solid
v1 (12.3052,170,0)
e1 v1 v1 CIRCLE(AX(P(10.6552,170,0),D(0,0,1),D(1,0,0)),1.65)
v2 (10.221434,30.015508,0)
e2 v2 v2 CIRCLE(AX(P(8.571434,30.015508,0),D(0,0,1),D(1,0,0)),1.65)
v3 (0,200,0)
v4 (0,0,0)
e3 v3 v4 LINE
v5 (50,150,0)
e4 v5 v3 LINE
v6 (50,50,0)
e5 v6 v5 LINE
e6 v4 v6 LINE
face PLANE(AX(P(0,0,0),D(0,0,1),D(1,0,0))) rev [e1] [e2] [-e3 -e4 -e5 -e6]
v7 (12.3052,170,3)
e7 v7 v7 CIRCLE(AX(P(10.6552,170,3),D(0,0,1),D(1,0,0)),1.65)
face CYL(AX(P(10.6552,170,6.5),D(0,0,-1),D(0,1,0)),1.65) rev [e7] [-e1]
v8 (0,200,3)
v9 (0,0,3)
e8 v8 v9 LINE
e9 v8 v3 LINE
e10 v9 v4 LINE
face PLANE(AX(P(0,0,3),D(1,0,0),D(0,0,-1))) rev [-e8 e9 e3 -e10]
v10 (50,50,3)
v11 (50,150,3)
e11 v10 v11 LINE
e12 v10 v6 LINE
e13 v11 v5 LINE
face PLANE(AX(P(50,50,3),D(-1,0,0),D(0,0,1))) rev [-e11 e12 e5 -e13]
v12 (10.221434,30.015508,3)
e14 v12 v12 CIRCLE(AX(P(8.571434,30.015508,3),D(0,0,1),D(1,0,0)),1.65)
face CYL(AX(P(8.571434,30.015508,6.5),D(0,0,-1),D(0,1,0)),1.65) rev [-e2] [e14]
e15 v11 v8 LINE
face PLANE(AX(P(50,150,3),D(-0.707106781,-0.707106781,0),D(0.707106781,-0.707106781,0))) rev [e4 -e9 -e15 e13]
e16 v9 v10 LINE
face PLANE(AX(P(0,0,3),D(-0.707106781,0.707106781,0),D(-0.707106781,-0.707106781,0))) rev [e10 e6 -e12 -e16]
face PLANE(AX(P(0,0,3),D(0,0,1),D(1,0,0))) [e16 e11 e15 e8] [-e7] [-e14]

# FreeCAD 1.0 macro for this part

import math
import FreeCAD as App
import Part
import Sketcher

V = App.Vector
Q = App.Units.Quantity


def add_polygon(sketch, points):
    """Adds a closed chain of lines whose ends are joined by coincident constraints."""
    first, n = sketch.GeometryCount, len(points)
    for a, b in zip(points, points[1:] + points[:1]):
        sketch.addGeometry(Part.LineSegment(App.Vector(*a, 0), App.Vector(*b, 0)), False)
    for i in range(n):
        sketch.addConstraint(Sketcher.Constraint("Coincident", first + i, 2, first + (i + 1) % n, 1))

doc = App.newDocument("Part")
params = doc.addObject("Spreadsheet::Sheet", "Params")
for row, (alias, value) in enumerate([
    ("sketch1_height", "200 mm"),
    ("sketch1_height2", "100 mm"),
    ("pad1_length", "3 mm"),
    ("sketch2_diameter", "3.3 mm"),
    ("pocket1_length", "8 mm"),
], start=1):
    params.set(f"A{row}", alias)
    params.set(f"B{row}", "=" + value)
    params.setAlias(f"B{row}", alias)

body = doc.addObject("PartDesign::Body", "Body")

# Sketch on XY plane
sketch1 = doc.addObject("Sketcher::SketchObject", "Sketch")
body.addObject(sketch1)
sketch1.AttachmentSupport = (doc.XY_Plane, [""])
sketch1.MapMode = "FlatFace"
add_polygon(sketch1, [(0, 200), (0, 0), (50, 50), (50, 150)])  # lines 0-3
sketch1.addConstraint(Sketcher.Constraint("Vertical", 0))
sketch1.addConstraint(Sketcher.Constraint("Vertical", 2))
sketch1.addConstraint(Sketcher.Constraint("Coincident", 0, 2, -1, 1))
sketch1.addConstraint(Sketcher.Constraint("Perpendicular", 1, 3))
sketch1.addConstraint(Sketcher.Constraint("Equal", 1, 3))
sketch1.addConstraint(Sketcher.Constraint("DistanceY", 0, 2, 0, 1, Q("200 mm")))
sketch1.addConstraint(Sketcher.Constraint("DistanceY", 2, 1, 2, 2, Q("100 mm")))
sketch1.setExpression("Constraints[9]", "Params.sketch1_height")
sketch1.setExpression("Constraints[10]", "Params.sketch1_height2")
pad1 = doc.addObject("PartDesign::Pad", "Pad")
body.addObject(pad1)
pad1.Profile = sketch1
pad1.setExpression("Length", "Params.pad1_length")

# Sketch on XY plane
sketch2 = doc.addObject("Sketcher::SketchObject", "Sketch001")
body.addObject(sketch2)
sketch2.AttachmentSupport = (doc.XY_Plane, [""])
sketch2.MapMode = "FlatFace"
sketch2.AttachmentOffset = App.Placement(V(0, 0, -1.5), App.Rotation())
sketch2.addGeometry(Part.ArcOfCircle(Part.Circle(V(10.7, 170, 0), V(0, 0, 1), 1.6), math.radians(89), math.radians(179)), False)
sketch2.addGeometry(Part.ArcOfCircle(Part.Circle(V(10.7, 170, 0), V(0, 0, 1), 1.6), math.radians(-91), math.radians(89)), False)
sketch2.addGeometry(Part.ArcOfCircle(Part.Circle(V(10.7, 170, 0), V(0, 0, 1), 1.6), math.radians(179), math.radians(269)), False)
sketch2.addGeometry(Part.Circle(V(8.6, 30, 0), V(0, 0, 1), 1.6), False)
sketch2.addConstraint(Sketcher.Constraint("Tangent", 0, 1, 1, 2))
sketch2.addConstraint(Sketcher.Constraint("Tangent", 1, 1, 2, 2))
sketch2.addConstraint(Sketcher.Constraint("Tangent", 2, 1, 0, 2))
sketch2.addConstraint(Sketcher.Constraint("Equal", 2, 3))
sketch2.addConstraint(Sketcher.Constraint("Diameter", 3, Q("3.3 mm")))
sketch2.addConstraint(Sketcher.Constraint("DistanceY", -1, 1, 0, 3, Q("170 mm")))
sketch2.addConstraint(Sketcher.Constraint("DistanceX", -1, 1, 0, 3, Q("10.6552 mm")))
sketch2.addConstraint(Sketcher.Constraint("DistanceY", -1, 1, 3, 3, Q("30.015508 mm")))
sketch2.addConstraint(Sketcher.Constraint("DistanceX", -1, 1, 0, 1, Q("10.679759 mm")))
sketch2.addConstraint(Sketcher.Constraint("DistanceX", -1, 1, 1, 1, Q("10.630642 mm")))
sketch2.addConstraint(Sketcher.Constraint("DistanceY", -1, 1, 2, 1, Q("170.024559 mm")))
sketch2.addConstraint(Sketcher.Constraint("DistanceX", -1, 1, 3, 3, Q("8.571435 mm")))
sketch2.setExpression("Constraints[4]", "Params.sketch2_diameter")
pocket1 = doc.addObject("PartDesign::Pocket", "Pocket")
body.addObject(pocket1)
pocket1.Profile = sketch2
pocket1.setExpression("Length", "Params.pocket1_length")
pocket1.Reversed = True

doc.recompute()
